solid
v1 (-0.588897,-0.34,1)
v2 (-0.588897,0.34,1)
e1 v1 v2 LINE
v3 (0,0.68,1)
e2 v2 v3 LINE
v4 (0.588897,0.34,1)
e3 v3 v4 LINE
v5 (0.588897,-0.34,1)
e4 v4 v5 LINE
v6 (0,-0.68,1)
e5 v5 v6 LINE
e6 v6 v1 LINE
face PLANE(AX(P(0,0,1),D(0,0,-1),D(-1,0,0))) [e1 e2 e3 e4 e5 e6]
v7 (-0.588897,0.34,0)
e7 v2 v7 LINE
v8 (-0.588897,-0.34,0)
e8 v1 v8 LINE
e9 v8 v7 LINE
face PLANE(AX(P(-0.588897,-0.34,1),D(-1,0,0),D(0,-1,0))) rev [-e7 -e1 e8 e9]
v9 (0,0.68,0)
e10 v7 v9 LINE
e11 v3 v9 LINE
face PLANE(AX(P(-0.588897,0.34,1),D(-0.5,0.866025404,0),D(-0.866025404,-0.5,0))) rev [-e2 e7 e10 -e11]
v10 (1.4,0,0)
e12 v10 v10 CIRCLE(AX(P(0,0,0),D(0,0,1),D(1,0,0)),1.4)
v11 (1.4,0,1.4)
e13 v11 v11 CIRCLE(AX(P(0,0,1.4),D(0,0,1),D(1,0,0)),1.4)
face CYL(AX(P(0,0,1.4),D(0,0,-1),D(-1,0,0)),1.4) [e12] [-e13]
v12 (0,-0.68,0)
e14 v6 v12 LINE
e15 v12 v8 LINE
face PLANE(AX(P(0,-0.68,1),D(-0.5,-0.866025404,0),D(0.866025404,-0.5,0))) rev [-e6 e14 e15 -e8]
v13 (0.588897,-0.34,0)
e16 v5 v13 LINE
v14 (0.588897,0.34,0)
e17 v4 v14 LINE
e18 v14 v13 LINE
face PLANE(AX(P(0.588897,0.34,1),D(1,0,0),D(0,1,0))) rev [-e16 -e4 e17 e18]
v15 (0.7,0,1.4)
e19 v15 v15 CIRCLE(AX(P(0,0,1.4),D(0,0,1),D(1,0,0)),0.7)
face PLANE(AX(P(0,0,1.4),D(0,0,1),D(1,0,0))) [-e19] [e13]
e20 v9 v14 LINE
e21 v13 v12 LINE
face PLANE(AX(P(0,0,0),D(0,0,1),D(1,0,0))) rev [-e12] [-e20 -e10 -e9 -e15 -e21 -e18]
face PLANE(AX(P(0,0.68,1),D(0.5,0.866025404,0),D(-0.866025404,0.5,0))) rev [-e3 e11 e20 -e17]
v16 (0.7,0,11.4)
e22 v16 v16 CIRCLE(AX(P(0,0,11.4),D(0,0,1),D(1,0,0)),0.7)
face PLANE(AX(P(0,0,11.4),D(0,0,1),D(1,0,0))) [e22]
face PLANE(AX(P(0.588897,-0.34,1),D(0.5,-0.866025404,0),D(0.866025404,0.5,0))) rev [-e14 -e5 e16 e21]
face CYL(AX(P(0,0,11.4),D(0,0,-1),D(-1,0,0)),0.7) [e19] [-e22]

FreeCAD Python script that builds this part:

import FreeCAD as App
import Part
import Sketcher

V = App.Vector
Q = App.Units.Quantity


def add_polygon(sketch, points):
    """Adds a closed chain of lines whose ends are joined by coincident constraints."""
    first, n = sketch.GeometryCount, len(points)
    for a, b in zip(points, points[1:] + points[:1]):
        sketch.addGeometry(Part.LineSegment(App.Vector(*a, 0), App.Vector(*b, 0)), False)
    for i in range(n):
        sketch.addConstraint(Sketcher.Constraint("Coincident", first + i, 2, first + (i + 1) % n, 1))

doc = App.newDocument("Part")
body = doc.addObject("PartDesign::Body", "Body")

sketch1 = body.newObject("Sketcher::SketchObject", "Sketch")
sketch1.AttachmentSupport = (doc.getObject("XY_Plane"), [""])
sketch1.MapMode = "FlatFace"
sketch1.addGeometry(Part.Circle(V(0, 0, 0), V(0, 0, 1), 1.4), False)
sketch1.addConstraint(Sketcher.Constraint("Coincident", 0, 3, -1, 1))
sketch1.addConstraint(Sketcher.Constraint("Diameter", 0, 2.8))
pad1 = body.newObject("PartDesign::Pad", "Pad")
pad1.Profile = sketch1
pad1.Length = 1.4

sketch2 = body.newObject("Sketcher::SketchObject", "Sketch001")
sketch2.AttachmentSupport = (doc.getObject("XY_Plane"), [""])
sketch2.MapMode = "FlatFace"
sketch2.AttachmentOffset = App.Placement(V(0, 0, 1.4), App.Rotation())
sketch2.addGeometry(Part.Circle(V(0, 0, 0), V(0, 0, 1), 0.7), False)
sketch2.addConstraint(Sketcher.Constraint("Coincident", 0, 3, -1, 1))
sketch2.addConstraint(Sketcher.Constraint("Diameter", 0, 1.4))
pad2 = body.newObject("PartDesign::Pad", "Pad001")
pad2.Profile = sketch2
pad2.Length = 10

sketch3 = body.newObject("Sketcher::SketchObject", "Sketch002")
sketch3.AttachmentSupport = (doc.getObject("XY_Plane"), [""])
sketch3.MapMode = "FlatFace"
add_polygon(sketch3, [(0, 0.68), (0.588897, 0.34), (0.588897, -0.34), (0, -0.68), (-0.588897, -0.34), (-0.588897, 0.34)])
sketch3.addConstraint(Sketcher.Constraint("Vertical", 1))
sketch3.addConstraint(Sketcher.Constraint("Vertical", 4))
sketch3.addConstraint(Sketcher.Constraint("Symmetric", 0, 2, 3, 2, -1, 1))
sketch3.addConstraint(Sketcher.Constraint("Symmetric", 2, 2, 5, 2, -1, 1))
sketch3.addConstraint(Sketcher.Constraint("PointOnObject", 2, 2, -2))
sketch3.addConstraint(Sketcher.Constraint("Parallel", 2, 5))
sketch3.addConstraint(Sketcher.Constraint("Horizontal", 1, 2, 3, 2))
sketch3.addConstraint(Sketcher.Constraint("Angle", 0, Q("-30 deg")))
sketch3.addConstraint(Sketcher.Constraint("DistanceY", 1, 2, 1, 1, 0.68))
sketch3.addConstraint(Sketcher.Constraint("Distance", 0, 0.68))
pocket1 = body.newObject("PartDesign::Pocket", "Pocket")
pocket1.Profile = sketch3
pocket1.Length = 1
pocket1.Reversed = True

doc.recompute()
